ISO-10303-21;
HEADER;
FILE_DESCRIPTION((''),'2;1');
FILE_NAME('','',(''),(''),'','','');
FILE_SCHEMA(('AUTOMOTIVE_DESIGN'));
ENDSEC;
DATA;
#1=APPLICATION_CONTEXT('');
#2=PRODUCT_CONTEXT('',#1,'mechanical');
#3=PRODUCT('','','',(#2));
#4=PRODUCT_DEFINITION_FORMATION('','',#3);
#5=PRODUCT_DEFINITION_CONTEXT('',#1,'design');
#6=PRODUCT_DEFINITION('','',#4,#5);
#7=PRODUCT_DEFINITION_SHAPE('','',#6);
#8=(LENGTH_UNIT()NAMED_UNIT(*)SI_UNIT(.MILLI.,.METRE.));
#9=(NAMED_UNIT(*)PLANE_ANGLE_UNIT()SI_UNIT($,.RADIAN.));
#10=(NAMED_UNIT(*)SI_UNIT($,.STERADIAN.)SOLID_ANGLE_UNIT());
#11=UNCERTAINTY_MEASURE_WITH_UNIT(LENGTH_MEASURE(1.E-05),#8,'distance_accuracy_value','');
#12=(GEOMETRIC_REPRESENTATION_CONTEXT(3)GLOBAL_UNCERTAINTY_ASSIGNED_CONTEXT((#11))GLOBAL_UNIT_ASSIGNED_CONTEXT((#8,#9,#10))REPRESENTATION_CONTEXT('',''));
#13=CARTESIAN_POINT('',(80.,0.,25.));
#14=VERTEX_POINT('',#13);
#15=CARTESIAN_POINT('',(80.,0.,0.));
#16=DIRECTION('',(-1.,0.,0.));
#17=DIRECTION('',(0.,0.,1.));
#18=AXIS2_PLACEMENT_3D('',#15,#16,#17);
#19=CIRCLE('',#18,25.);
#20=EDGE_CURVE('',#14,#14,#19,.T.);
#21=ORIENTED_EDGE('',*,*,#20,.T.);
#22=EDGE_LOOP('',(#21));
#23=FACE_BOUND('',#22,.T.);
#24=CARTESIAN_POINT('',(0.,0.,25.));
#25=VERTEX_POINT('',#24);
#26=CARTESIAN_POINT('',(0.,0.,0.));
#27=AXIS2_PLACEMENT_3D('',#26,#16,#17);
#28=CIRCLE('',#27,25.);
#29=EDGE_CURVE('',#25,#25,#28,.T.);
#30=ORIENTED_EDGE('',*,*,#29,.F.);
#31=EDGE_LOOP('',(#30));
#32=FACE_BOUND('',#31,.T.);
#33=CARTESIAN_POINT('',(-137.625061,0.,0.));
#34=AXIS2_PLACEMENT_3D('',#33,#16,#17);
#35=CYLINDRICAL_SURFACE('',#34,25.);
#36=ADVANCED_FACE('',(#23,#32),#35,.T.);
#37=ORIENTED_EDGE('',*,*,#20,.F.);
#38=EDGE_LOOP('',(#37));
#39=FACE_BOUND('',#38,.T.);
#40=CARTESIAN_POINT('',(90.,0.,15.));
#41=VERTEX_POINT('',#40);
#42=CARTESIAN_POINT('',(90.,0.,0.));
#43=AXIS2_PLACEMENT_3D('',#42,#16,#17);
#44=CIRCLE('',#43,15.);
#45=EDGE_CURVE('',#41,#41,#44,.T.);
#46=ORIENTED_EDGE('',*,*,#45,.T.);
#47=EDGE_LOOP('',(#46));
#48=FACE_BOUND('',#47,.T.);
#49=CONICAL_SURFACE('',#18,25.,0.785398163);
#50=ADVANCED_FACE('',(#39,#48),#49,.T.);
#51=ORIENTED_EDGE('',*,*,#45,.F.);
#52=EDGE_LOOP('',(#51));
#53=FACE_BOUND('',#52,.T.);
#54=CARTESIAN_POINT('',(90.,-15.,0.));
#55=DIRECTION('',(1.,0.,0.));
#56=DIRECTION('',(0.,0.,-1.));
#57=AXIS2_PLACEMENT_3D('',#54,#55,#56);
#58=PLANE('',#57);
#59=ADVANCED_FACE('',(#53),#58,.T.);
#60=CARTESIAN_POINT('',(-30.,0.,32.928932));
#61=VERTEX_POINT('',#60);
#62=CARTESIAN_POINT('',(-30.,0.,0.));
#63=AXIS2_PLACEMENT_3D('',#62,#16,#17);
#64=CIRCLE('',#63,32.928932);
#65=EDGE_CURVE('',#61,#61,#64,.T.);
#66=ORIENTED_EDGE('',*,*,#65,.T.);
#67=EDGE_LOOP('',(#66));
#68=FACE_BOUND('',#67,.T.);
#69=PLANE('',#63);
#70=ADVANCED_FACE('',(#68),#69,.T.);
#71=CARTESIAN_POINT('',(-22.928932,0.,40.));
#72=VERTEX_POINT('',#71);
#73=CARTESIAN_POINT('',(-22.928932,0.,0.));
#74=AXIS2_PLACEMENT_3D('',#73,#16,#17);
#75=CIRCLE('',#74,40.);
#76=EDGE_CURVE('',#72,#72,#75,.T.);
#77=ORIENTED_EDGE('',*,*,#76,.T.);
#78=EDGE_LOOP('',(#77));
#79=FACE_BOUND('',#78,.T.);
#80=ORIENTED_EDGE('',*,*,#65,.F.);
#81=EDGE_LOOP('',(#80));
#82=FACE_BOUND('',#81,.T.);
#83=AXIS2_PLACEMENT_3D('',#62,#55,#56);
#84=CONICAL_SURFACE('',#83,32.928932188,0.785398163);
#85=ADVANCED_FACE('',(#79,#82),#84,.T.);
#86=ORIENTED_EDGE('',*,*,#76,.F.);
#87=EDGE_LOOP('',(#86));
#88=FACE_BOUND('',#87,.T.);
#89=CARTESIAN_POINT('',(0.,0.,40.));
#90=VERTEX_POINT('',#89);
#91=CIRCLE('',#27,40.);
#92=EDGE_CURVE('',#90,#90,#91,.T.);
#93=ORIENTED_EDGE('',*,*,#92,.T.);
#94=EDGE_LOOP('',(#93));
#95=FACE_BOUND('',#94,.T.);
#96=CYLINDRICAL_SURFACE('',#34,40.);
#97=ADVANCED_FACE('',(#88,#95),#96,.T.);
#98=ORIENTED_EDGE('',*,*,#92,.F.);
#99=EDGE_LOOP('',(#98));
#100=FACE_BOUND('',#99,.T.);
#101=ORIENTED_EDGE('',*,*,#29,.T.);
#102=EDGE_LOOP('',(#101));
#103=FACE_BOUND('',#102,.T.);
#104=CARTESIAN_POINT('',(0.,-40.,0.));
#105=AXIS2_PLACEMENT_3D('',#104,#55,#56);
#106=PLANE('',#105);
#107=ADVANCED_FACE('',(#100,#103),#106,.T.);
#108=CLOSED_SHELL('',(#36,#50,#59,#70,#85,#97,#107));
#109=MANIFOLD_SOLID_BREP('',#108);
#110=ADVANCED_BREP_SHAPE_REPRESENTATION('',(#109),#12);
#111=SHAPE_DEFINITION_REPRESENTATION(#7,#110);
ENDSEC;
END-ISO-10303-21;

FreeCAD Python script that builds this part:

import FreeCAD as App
import Part
import Sketcher
from FreeCAD import Vector
Q = App.Units.Quantity

doc = App.newDocument("Part")
body = doc.addObject("PartDesign::Body", "Body")

sketch1 = doc.addObject("Sketcher::SketchObject", "Sketch")
body.addObject(sketch1)
sketch1.AttachmentSupport = (doc.XY_Plane, [""])
sketch1.MapMode = "FlatFace"
sketch1.addGeometry([
    Part.LineSegment(Vector(-30, 0, 0), Vector(-30, -32.928932, 0)),
    Part.LineSegment(Vector(-30, -32.928932, 0), Vector(-22.928932, -40, 0)),
    Part.LineSegment(Vector(-22.928932, -40, 0), Vector(0, -40, 0)),
    Part.LineSegment(Vector(0, -40, 0), Vector(0, -25, 0)),
    Part.LineSegment(Vector(0, -25, 0), Vector(80, -25, 0)),
    Part.LineSegment(Vector(80, -25, 0), Vector(90, -15, 0)),
    Part.LineSegment(Vector(90, -15, 0), Vector(90, 0, 0)),
    Part.LineSegment(Vector(90, 0, 0), Vector(-30, 0, 0)),
], False)
sketch1.addConstraint([
    Sketcher.Constraint("Coincident", 0, 2, 1, 1),
    Sketcher.Constraint("Coincident", 1, 2, 2, 1),
    Sketcher.Constraint("Coincident", 2, 2, 3, 1),
    Sketcher.Constraint("Coincident", 3, 2, 4, 1),
    Sketcher.Constraint("Coincident", 4, 2, 5, 1),
    Sketcher.Constraint("Coincident", 5, 2, 6, 1),
    Sketcher.Constraint("Coincident", 6, 2, 7, 1),
    Sketcher.Constraint("Coincident", 7, 2, 0, 1),
    Sketcher.Constraint("Vertical", 0),
    Sketcher.Constraint("Horizontal", 2),
    Sketcher.Constraint("Vertical", 3),
    Sketcher.Constraint("Horizontal", 4),
    Sketcher.Constraint("Vertical", 6),
    Sketcher.Constraint("Horizontal", 7),
    Sketcher.Constraint("PointOnObject", 2, 2, -2),
    Sketcher.Constraint("PointOnObject", 6, 2, -1),
    Sketcher.Constraint("Perpendicular", 1, 5),
    Sketcher.Constraint("Equal", 3, 6),
    Sketcher.Constraint("DistanceX", 4, 1, 4, 2, Q("80 mm")),
    Sketcher.Constraint("DistanceX", 7, 2, 7, 1, Q("120 mm")),
    Sketcher.Constraint("DistanceY", 3, 1, 3, 2, Q("15 mm")),
    Sketcher.Constraint("Angle", 1, Q("-45 deg")),
    Sketcher.Constraint("Distance", 1, Q("10 mm")),
    Sketcher.Constraint("DistanceX", 0, 2, -1, 1, Q("30 mm")),
])
revolution = doc.addObject("PartDesign::Revolution", "Revolution")
body.addObject(revolution)
revolution.Profile = sketch1
revolution.ReferenceAxis = (sketch1, ["H_Axis"])
revolution.Angle = 360

doc.recompute()
